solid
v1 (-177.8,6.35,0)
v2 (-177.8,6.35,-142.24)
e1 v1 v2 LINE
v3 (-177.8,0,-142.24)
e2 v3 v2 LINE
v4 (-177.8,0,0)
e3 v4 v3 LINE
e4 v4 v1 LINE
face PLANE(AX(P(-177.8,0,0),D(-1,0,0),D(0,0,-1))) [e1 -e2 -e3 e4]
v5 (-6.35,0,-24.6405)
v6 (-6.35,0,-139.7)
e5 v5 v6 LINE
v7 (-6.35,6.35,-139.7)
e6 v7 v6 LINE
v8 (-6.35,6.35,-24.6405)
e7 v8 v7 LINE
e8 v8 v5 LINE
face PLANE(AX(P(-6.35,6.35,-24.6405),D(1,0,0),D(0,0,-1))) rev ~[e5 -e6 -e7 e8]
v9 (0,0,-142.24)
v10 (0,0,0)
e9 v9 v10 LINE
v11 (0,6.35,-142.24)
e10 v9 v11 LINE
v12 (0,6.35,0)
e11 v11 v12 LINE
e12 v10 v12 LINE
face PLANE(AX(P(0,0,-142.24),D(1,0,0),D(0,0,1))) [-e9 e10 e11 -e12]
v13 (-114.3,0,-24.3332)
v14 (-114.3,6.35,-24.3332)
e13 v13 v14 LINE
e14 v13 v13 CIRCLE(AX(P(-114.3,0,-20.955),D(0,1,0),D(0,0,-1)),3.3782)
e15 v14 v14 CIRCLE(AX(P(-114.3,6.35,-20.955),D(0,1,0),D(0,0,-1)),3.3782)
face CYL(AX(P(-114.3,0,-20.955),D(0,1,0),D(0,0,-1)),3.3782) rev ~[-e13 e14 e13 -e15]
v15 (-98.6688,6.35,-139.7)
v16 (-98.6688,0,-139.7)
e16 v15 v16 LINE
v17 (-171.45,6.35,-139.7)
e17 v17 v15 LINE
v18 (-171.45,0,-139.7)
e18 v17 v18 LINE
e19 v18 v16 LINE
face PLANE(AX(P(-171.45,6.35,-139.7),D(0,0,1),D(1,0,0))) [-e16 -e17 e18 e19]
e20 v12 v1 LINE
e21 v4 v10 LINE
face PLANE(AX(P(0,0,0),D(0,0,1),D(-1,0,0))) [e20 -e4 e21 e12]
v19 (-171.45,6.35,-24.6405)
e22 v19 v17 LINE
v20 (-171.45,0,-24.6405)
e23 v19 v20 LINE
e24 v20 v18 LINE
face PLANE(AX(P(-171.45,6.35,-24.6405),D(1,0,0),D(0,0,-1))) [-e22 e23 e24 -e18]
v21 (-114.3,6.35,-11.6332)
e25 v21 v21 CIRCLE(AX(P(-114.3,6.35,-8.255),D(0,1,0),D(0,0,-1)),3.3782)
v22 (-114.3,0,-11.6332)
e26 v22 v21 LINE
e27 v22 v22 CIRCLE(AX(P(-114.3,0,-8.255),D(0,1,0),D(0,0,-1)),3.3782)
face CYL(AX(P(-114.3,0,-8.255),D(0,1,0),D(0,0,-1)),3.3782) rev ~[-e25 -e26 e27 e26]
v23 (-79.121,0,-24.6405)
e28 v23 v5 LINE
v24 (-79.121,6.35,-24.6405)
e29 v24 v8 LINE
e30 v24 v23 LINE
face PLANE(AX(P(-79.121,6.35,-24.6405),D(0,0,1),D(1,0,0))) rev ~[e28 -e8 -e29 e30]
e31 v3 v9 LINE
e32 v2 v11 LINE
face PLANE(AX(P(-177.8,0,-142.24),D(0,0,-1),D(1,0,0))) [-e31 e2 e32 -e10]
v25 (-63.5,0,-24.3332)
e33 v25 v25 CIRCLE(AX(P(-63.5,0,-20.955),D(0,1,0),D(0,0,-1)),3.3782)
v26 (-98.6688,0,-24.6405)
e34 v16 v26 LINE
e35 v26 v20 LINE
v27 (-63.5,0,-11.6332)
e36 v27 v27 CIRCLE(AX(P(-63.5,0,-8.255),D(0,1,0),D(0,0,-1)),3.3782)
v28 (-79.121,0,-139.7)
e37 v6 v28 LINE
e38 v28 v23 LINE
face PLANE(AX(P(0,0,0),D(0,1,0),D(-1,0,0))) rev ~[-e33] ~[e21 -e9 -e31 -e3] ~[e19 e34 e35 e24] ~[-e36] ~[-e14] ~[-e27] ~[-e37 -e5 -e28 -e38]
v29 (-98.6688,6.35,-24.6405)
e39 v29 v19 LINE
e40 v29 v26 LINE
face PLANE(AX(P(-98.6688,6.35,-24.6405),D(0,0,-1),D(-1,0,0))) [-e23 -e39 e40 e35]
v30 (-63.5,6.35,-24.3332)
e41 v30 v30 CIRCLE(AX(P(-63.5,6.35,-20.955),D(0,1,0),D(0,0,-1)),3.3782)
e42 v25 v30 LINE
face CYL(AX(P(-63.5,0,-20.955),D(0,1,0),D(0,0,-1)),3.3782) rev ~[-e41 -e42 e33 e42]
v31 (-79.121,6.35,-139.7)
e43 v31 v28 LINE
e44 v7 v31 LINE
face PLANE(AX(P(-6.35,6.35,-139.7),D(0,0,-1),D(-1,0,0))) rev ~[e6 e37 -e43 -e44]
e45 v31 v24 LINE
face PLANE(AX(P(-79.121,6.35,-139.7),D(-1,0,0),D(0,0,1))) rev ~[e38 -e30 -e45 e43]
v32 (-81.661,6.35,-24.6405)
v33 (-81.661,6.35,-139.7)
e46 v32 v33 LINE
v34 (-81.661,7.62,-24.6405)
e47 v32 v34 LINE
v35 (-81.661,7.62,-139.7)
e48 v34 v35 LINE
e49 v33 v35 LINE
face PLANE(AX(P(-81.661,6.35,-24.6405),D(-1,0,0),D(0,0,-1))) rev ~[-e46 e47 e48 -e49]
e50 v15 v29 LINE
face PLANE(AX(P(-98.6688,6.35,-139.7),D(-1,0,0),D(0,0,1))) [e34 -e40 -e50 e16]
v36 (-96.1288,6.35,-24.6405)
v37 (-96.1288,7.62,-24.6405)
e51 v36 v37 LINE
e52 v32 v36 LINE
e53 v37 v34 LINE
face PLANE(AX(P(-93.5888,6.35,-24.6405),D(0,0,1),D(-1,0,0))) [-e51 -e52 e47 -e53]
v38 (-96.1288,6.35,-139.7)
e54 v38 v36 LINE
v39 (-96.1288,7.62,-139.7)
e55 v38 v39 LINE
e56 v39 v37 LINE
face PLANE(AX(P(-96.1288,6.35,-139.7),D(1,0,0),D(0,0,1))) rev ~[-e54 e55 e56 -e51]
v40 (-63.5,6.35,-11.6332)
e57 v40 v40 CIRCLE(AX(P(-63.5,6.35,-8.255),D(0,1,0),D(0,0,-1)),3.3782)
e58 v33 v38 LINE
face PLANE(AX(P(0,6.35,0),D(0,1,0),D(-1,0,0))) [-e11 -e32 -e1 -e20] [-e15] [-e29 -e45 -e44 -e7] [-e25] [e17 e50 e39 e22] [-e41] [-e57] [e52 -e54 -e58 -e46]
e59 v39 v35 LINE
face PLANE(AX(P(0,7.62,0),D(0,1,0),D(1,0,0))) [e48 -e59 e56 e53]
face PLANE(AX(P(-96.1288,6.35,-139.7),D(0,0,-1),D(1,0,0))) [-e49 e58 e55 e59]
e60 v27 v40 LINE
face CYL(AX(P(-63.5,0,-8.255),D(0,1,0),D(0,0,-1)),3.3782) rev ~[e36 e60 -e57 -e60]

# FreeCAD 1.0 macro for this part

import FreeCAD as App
import Part
import Sketcher

V = App.Vector
Q = App.Units.Quantity


def add_polygon(sketch, points):
    """Adds a closed chain of lines whose ends are joined by coincident constraints."""
    first, n = sketch.GeometryCount, len(points)
    for a, b in zip(points, points[1:] + points[:1]):
        sketch.addGeometry(Part.LineSegment(App.Vector(*a, 0), App.Vector(*b, 0)), False)
    for i in range(n):
        sketch.addConstraint(Sketcher.Constraint("Coincident", first + i, 2, first + (i + 1) % n, 1))

doc = App.newDocument("Part")
body = doc.addObject("PartDesign::Body", "Body")

# Sketch on XZ plane
sketch1 = body.newObject("Sketcher::SketchObject", "Sketch")
sketch1.AttachmentSupport = (doc.getObject("XZ_Plane"), [""])
sketch1.MapMode = "FlatFace"
add_polygon(sketch1, [(-177.8, 0), (0, 0), (0, -142.24), (-177.8, -142.24)])  # lines 0-3
sketch1.addConstraint([
    Sketcher.Constraint("Horizontal", 0),
    Sketcher.Constraint("Vertical", 1),
    Sketcher.Constraint("Horizontal", 2),
    Sketcher.Constraint("Vertical", 3),
    Sketcher.Constraint("Coincident", 0, 2, -1, 1),
    Sketcher.Constraint("DistanceX", 0, 1, 0, 2, Q("7 in")),
    Sketcher.Constraint("DistanceY", 1, 2, 1, 1, Q("5.6 in")),
])
pad1 = body.newObject("PartDesign::Pad", "Pad")
pad1.Profile = sketch1
pad1.Length = Q("0.25 in")
pad1.Reversed = True

# Sketch on XZ plane
sketch2 = body.newObject("Sketcher::SketchObject", "Sketch001")
sketch2.AttachmentSupport = (doc.getObject("XZ_Plane"), [""])
sketch2.MapMode = "FlatFace"
sketch2.addGeometry([
    Part.Circle(V(-63.5, -8.255, 0), V(0, 0, 1), 3.3782),
    Part.Circle(V(-63.5, -20.955, 0), V(0, 0, 1), 3.3782),
    Part.Circle(V(-114.3, -20.955, 0), V(0, 0, 1), 3.3782),
    Part.Circle(V(-114.3, -8.255, 0), V(0, 0, 1), 3.3782),
], False)
sketch2.addConstraint([
    Sketcher.Constraint("Equal", 0, 1),
    Sketcher.Constraint("Equal", 1, 2),
    Sketcher.Constraint("Equal", 2, 3),
    Sketcher.Constraint("Horizontal", 1, 3, 2, 3),
    Sketcher.Constraint("Horizontal", 0, 3, 3, 3),
    Sketcher.Constraint("Vertical", 0, 3, 1, 3),
    Sketcher.Constraint("Vertical", 2, 3, 3, 3),
    Sketcher.Constraint("Diameter", 0, Q("0.266 in")),
    Sketcher.Constraint("DistanceX", 2, 3, 1, 3, Q("2 in")),
    Sketcher.Constraint("DistanceX", 0, 3, -1, 1, Q("2.5 in")),
    Sketcher.Constraint("DistanceY", 1, 3, 0, 3, Q("0.5 in")),
    Sketcher.Constraint("DistanceY", 0, 3, -1, 1, Q("0.325 in")),
])
doc.recompute()
hole = body.newObject("PartDesign::Hole", "Hole")
hole.Profile = sketch2
hole.ThreadType = "None"
hole.Diameter = Q("0.266 in")
hole.DepthType = "ThroughAll"

# Sketch on XZ plane
sketch3 = body.newObject("Sketcher::SketchObject", "Sketch002")
sketch3.AttachmentSupport = (doc.getObject("XZ_Plane"), [""])
sketch3.MapMode = "FlatFace"
sketch3.AttachmentOffset = App.Placement(V(0, 0, -0.25 * 25.4), App.Rotation())
add_polygon(sketch3, [(-6.35, -24.6405), (-6.35, -139.7), (-79.121, -139.7), (-79.121, -24.6405)])  # lines 0-3
add_polygon(sketch3, [(-98.6688, -139.7), (-171.45, -139.7), (-171.45, -24.6405), (-98.6688, -24.6405)])  # lines 4-7
sketch3.addConstraint([
    Sketcher.Constraint("Vertical", 0),
    Sketcher.Constraint("Horizontal", 1),
    Sketcher.Constraint("Vertical", 2),
    Sketcher.Constraint("Horizontal", 3),
    Sketcher.Constraint("Horizontal", 4),
    Sketcher.Constraint("Vertical", 5),
    Sketcher.Constraint("Horizontal", 6),
    Sketcher.Constraint("Vertical", 7),
    Sketcher.Constraint("Horizontal", 1, 2, 4, 2),
    Sketcher.Constraint("Horizontal", 3, 2, 5, 2),
    Sketcher.Constraint("DistanceX", 1, 2, 1, 1, Q("2.865 in")),
    Sketcher.Constraint("DistanceX", 0, 2, -1, 1, Q("0.25 in")),
    Sketcher.Constraint("DistanceX", 4, 2, 4, 1, Q("2.8654 in")),
    Sketcher.Constraint("DistanceY", 0, 2, 0, 1, Q("4.5299 in")),
    Sketcher.Constraint("DistanceY", 0, 2, -1, 1, Q("5.5 in")),
    Sketcher.Constraint("DistanceX", 4, 2, 0, 2, Q("6.5 in")),
])
pocket1 = body.newObject("PartDesign::Pocket", "Pocket")
pocket1.Profile = sketch3
pocket1.Length = Q("0.25 in")
pocket1.Reversed = True

# Sketch on XZ plane
sketch4 = body.newObject("Sketcher::SketchObject", "Sketch003")
sketch4.AttachmentSupport = (doc.getObject("XZ_Plane"), [""])
sketch4.MapMode = "FlatFace"
sketch4.AttachmentOffset = App.Placement(V(0, 0, -0.25 * 25.4), App.Rotation())
add_polygon(sketch4, [(-96.1288, -139.7), (-96.1288, -24.6405), (-81.661, -24.6405), (-81.661, -139.7)])  # lines 0-3
sketch4.addConstraint([
    Sketcher.Constraint("Vertical", 0),
    Sketcher.Constraint("Horizontal", 1),
    Sketcher.Constraint("Vertical", 2),
    Sketcher.Constraint("Horizontal", 3),
    Sketcher.Constraint("DistanceY", 2, 2, -1, 1, Q("5.5 in")),
    Sketcher.Constraint("DistanceX", 1, 1, 1, 2, Q("0.5696 in")),
    Sketcher.Constraint("DistanceY", 0, 1, 0, 2, Q("4.5299 in")),
    Sketcher.Constraint("DistanceX", 1, 2, -1, 1, Q("3.215 in")),
])
pad2 = body.newObject("PartDesign::Pad", "Pad001")
pad2.Profile = sketch4
pad2.Length = Q("0.05 in")
pad2.Reversed = True

doc.recompute()
